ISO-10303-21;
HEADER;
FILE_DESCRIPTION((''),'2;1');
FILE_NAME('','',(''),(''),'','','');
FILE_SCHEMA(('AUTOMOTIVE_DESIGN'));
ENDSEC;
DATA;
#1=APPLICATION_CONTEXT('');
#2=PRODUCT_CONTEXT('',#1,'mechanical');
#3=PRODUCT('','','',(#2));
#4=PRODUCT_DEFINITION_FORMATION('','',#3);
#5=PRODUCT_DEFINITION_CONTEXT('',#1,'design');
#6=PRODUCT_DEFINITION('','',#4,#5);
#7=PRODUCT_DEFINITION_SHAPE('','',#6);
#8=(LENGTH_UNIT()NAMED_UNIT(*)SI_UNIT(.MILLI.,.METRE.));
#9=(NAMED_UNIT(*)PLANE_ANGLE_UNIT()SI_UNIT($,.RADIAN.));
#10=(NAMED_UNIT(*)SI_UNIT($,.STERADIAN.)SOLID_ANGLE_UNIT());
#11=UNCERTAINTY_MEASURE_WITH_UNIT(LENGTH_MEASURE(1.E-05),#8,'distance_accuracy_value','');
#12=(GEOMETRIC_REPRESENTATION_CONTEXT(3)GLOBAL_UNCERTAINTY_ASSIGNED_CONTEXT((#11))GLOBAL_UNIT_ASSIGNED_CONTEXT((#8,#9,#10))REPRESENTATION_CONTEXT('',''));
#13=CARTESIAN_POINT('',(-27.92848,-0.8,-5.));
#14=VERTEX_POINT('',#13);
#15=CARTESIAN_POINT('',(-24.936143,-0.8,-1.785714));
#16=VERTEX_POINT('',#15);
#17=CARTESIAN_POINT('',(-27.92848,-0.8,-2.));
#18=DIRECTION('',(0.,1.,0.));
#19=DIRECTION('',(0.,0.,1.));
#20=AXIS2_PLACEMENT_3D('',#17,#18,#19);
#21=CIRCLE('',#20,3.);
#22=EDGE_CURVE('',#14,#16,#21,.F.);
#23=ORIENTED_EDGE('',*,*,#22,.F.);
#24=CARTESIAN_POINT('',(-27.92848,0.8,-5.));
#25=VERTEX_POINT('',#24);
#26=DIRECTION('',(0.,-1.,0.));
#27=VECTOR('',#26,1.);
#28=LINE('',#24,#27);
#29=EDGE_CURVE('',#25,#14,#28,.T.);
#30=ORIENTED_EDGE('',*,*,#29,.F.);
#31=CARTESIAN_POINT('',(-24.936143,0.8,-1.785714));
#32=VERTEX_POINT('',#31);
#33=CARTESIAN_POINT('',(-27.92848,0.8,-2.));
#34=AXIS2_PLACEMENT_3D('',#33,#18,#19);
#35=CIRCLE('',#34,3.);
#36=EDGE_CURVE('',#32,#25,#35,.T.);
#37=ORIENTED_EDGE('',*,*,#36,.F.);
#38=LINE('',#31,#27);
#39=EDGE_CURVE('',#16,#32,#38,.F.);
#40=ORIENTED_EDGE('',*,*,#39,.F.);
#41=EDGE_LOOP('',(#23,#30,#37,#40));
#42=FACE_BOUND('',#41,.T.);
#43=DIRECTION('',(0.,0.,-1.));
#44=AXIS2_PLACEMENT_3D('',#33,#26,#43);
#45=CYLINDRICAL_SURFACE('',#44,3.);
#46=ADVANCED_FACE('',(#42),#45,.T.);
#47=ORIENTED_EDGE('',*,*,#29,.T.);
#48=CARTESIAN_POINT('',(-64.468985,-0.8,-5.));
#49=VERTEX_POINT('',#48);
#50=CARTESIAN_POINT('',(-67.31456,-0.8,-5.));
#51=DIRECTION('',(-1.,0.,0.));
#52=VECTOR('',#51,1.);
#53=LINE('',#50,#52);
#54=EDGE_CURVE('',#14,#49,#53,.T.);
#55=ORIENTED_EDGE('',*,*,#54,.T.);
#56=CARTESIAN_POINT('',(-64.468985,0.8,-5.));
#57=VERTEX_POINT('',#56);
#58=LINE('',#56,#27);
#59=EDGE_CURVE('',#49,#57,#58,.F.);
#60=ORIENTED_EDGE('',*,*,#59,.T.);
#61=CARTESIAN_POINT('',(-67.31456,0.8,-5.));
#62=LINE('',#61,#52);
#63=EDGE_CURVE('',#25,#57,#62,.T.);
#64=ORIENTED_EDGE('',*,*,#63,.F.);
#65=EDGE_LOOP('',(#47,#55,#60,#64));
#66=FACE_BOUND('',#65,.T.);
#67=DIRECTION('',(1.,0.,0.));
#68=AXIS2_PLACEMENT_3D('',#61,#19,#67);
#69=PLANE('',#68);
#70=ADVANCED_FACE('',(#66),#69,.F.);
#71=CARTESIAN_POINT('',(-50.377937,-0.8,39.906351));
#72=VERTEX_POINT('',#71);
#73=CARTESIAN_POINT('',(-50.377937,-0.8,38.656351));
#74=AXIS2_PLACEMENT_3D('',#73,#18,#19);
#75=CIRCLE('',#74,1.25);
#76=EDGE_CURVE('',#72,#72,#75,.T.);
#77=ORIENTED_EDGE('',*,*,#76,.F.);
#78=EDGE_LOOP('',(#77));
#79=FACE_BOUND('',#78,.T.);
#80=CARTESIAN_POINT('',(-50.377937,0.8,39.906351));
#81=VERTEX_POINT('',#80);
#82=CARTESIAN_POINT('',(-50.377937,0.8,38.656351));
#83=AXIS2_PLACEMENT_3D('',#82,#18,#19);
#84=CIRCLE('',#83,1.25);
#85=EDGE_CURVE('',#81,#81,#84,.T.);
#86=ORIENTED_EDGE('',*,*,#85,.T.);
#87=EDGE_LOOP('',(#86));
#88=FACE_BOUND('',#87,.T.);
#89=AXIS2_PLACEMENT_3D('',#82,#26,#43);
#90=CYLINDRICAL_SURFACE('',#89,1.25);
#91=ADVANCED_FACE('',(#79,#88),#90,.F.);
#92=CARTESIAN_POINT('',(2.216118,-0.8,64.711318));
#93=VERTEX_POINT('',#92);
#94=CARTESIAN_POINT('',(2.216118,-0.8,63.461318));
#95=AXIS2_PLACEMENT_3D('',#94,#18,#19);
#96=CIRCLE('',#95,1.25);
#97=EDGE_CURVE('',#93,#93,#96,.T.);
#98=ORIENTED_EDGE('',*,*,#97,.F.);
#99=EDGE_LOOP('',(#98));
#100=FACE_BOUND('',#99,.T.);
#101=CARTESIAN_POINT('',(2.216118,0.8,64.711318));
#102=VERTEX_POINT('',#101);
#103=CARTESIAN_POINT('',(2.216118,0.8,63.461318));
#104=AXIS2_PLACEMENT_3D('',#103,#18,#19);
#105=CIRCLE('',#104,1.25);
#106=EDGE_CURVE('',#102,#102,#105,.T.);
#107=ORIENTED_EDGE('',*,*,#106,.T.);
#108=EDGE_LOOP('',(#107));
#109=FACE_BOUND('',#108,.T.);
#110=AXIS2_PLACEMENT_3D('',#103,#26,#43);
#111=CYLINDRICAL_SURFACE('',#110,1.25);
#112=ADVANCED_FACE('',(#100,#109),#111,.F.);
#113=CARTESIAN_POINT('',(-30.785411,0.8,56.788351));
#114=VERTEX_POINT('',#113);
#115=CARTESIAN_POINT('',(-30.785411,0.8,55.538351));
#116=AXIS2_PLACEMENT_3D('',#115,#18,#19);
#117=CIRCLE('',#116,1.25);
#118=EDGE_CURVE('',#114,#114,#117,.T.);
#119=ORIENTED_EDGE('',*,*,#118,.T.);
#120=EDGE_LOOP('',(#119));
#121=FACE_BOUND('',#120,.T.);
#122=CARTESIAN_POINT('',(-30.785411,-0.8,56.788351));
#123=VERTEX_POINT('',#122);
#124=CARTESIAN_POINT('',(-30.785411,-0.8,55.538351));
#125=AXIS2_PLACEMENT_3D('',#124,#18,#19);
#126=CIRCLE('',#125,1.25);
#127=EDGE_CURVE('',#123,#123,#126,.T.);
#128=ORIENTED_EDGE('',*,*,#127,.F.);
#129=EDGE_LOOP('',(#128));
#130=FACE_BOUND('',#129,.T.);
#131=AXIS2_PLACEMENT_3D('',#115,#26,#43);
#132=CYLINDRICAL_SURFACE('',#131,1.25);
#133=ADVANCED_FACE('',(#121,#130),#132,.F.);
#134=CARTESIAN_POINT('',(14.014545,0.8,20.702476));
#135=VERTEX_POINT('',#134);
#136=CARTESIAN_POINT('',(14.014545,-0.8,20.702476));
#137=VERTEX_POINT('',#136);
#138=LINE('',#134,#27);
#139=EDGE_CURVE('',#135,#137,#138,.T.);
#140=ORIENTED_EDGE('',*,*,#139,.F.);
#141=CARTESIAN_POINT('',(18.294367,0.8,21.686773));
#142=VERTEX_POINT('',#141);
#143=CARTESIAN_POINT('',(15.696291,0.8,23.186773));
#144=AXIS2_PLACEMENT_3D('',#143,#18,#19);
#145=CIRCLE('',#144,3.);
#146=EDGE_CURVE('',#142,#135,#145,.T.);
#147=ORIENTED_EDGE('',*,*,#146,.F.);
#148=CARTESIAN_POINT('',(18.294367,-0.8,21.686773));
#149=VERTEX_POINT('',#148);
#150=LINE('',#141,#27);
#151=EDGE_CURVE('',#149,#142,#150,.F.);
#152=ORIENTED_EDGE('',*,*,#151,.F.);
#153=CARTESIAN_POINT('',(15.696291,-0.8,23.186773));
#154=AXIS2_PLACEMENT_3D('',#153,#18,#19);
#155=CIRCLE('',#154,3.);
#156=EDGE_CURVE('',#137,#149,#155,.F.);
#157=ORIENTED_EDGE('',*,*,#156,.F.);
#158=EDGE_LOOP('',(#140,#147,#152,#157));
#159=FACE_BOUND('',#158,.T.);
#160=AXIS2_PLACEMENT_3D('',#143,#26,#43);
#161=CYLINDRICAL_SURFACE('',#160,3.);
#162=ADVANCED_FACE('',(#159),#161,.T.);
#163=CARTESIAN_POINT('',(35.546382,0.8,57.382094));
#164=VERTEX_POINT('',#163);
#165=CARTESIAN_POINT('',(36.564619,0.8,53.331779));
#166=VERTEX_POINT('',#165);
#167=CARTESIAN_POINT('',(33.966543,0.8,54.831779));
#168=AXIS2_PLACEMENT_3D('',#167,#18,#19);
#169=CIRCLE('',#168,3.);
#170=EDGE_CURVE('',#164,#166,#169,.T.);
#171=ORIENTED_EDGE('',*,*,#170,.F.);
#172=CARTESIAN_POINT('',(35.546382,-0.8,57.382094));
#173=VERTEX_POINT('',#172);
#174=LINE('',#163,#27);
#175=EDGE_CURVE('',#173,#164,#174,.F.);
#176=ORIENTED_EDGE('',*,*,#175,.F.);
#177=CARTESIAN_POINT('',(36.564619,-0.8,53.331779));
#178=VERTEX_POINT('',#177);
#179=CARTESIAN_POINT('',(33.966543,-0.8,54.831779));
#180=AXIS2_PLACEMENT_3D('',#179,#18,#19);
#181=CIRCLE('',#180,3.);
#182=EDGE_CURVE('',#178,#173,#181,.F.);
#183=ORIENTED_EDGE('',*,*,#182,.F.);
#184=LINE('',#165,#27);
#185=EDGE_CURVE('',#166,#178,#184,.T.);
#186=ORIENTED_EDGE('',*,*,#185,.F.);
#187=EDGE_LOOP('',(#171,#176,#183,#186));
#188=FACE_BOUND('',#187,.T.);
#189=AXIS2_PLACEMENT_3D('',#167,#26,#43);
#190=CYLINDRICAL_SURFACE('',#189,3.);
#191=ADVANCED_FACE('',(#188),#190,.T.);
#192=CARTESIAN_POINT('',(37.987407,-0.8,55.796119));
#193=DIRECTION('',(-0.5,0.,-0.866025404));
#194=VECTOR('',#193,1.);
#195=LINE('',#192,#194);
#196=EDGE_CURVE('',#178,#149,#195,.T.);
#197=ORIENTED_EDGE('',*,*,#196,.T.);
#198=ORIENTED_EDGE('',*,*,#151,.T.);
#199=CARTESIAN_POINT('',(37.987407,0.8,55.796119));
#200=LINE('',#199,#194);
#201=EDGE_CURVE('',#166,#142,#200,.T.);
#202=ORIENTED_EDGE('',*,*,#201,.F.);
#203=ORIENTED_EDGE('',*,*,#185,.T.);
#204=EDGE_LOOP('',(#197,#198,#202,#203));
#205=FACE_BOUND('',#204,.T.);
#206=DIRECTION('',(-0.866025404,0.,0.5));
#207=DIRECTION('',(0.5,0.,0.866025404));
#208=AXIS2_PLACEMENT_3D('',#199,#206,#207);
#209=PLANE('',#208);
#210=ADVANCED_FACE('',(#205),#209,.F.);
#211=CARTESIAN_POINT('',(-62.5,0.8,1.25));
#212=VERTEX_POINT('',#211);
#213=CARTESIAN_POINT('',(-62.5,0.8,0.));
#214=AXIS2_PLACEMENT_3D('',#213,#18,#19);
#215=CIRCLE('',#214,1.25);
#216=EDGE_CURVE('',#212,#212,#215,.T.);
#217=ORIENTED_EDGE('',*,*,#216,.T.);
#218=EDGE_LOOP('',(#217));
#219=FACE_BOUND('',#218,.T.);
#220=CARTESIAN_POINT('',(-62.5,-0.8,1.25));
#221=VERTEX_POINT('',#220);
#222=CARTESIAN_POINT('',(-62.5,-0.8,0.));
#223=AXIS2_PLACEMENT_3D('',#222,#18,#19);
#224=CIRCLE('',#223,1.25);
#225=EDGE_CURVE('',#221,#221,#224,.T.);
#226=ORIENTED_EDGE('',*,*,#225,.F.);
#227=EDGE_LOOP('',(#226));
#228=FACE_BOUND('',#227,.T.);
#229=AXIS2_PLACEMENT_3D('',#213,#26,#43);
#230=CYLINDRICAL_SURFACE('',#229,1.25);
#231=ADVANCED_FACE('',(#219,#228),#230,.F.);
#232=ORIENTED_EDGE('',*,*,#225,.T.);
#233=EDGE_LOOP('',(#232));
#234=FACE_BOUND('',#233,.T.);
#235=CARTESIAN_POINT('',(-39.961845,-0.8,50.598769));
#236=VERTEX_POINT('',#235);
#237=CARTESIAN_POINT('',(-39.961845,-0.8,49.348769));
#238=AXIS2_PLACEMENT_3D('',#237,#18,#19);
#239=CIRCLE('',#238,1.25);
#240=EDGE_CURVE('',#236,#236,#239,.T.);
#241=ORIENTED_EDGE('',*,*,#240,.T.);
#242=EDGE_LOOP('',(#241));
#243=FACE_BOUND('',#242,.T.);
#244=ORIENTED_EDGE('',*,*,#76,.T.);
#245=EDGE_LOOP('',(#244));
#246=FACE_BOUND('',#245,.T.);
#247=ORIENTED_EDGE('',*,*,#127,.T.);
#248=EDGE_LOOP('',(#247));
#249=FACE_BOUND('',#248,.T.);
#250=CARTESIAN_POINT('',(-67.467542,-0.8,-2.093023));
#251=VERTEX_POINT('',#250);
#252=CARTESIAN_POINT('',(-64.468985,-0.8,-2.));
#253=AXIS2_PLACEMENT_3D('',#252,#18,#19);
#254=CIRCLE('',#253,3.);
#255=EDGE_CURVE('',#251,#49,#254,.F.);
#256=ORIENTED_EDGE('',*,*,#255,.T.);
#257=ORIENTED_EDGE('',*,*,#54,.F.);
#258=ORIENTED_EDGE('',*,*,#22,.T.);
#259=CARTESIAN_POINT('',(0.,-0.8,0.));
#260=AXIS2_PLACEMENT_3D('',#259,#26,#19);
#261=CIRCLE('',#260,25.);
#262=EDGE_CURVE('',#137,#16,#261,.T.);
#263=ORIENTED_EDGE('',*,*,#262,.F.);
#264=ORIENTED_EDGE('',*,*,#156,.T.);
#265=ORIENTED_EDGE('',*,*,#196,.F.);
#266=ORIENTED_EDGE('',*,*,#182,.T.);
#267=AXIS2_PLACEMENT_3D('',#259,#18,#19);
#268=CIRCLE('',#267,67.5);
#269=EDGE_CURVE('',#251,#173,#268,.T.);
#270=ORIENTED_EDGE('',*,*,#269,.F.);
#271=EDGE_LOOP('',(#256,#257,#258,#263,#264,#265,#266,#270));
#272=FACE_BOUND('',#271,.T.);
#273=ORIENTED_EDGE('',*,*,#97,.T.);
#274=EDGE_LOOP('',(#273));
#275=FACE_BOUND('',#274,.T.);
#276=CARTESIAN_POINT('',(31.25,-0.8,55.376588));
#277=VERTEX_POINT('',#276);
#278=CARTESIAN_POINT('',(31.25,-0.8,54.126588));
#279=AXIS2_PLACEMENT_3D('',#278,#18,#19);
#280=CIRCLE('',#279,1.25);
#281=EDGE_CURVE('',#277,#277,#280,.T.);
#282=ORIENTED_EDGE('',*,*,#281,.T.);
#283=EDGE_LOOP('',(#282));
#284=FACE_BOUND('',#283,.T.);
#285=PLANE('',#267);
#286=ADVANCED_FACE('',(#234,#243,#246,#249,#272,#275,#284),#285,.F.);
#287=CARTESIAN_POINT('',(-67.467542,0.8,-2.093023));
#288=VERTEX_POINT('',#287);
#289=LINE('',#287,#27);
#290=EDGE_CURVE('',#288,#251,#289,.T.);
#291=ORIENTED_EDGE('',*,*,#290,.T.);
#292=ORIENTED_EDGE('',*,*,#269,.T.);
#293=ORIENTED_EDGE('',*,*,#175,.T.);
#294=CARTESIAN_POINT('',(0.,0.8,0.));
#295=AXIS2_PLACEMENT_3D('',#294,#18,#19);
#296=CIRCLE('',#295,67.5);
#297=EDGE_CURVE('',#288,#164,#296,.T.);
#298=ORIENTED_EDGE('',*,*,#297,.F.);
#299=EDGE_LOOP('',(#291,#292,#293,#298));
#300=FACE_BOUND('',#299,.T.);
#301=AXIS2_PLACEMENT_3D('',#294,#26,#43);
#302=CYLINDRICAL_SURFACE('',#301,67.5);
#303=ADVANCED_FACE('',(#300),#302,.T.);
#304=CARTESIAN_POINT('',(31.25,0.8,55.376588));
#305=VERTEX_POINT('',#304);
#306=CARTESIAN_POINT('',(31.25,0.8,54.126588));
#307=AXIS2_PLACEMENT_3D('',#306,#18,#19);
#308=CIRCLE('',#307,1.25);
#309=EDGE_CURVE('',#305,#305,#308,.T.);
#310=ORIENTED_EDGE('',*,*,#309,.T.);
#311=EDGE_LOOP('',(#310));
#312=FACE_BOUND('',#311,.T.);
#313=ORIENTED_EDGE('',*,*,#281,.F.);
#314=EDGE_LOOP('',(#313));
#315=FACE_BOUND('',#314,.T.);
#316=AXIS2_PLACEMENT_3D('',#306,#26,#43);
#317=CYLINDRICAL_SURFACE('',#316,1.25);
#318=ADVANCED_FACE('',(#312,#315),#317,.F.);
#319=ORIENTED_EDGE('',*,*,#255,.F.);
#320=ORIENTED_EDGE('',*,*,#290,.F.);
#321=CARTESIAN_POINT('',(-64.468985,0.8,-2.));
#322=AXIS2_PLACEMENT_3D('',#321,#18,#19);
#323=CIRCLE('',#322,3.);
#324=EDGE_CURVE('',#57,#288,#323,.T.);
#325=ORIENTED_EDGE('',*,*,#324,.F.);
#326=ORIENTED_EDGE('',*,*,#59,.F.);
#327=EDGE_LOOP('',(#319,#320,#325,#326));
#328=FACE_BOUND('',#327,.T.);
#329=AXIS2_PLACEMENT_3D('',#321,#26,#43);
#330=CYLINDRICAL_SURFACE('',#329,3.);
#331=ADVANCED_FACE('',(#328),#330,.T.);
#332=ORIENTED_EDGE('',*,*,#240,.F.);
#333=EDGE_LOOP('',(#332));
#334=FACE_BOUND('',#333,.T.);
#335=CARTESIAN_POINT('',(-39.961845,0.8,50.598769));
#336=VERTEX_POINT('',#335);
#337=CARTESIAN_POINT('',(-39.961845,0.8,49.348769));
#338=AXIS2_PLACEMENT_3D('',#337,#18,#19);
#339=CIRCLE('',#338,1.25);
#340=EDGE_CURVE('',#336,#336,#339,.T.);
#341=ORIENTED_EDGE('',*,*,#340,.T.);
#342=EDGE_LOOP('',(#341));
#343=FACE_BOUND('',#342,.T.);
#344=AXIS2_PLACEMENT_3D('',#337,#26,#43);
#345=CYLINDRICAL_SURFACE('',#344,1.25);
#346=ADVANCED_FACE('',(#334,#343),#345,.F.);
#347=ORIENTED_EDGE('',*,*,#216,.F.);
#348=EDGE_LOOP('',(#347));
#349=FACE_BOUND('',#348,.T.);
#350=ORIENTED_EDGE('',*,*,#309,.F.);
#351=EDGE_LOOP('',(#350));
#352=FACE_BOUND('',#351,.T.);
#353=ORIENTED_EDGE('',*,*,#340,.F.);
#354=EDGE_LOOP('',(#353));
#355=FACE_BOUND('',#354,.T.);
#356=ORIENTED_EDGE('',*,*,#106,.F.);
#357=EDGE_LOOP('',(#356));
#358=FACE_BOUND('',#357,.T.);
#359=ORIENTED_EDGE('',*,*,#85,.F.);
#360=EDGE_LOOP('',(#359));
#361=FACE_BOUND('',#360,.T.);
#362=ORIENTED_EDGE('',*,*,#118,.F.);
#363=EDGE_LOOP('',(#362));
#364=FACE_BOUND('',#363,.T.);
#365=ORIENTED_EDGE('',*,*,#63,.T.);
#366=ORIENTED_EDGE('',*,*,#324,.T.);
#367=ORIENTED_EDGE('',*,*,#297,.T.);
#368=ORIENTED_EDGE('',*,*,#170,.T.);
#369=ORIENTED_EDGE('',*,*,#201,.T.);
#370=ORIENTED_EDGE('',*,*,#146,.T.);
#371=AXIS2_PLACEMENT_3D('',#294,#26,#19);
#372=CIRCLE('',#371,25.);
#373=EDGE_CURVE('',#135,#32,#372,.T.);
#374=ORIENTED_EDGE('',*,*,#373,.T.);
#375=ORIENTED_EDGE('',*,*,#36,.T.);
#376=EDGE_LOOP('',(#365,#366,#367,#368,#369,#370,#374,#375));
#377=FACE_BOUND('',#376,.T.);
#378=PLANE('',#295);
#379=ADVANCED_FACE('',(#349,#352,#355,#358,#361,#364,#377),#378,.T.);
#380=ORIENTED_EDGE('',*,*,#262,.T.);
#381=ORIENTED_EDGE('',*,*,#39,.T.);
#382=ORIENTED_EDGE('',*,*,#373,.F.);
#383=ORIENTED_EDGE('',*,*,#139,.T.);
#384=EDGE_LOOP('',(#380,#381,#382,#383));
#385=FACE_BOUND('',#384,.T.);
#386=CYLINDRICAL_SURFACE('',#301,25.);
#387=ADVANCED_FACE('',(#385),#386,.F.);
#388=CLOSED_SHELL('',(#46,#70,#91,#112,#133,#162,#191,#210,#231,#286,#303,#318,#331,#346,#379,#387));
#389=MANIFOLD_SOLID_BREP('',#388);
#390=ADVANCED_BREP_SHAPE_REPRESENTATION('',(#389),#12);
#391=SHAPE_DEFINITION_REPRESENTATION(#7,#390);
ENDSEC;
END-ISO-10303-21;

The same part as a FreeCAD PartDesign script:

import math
import FreeCAD as App
import Part
import Sketcher
Q = App.Units.Quantity


def edges_at(feature, points):
    """Names of the edges that pass closest to the given points."""
    edges = feature.Shape.Edges
    near = lambda p: min(range(len(edges)), key=lambda i: edges[i].distToShape(Part.Vertex(*p))[0])
    return sorted({f"Edge{near(p) + 1}" for p in points})

doc = App.newDocument("Part")
body = doc.addObject("PartDesign::Body", "Body")

# Sketch on XZ plane
sketch1 = body.newObject("Sketcher::SketchObject", "Sketch")
sketch1.AttachmentSupport = (doc.getObject("XZ_Plane"), [""])
sketch1.MapMode = "FlatFace"
sketch1.addGeometry([
    Part.LineSegment(App.Vector(-24.5, -5, 0), App.Vector(-67.3, -5, 0)),  # 0
    Part.ArcOfCircle(Part.Circle(App.Vector(0, 0, 0), App.Vector(0, 0, 1), 67.5), math.radians(56), math.radians(184)),  # 1
    Part.LineSegment(App.Vector(38, 55.8, 0), App.Vector(16.6, 18.7, 0)),  # 2
    Part.ArcOfCircle(Part.Circle(App.Vector(0, 0, 0), App.Vector(0, 0, 1), 25), math.radians(48), math.radians(192)),  # 3
    Part.Circle(App.Vector(31.2, 54.1, 0), App.Vector(0, 0, 1), 1.2),  # 4
    Part.Circle(App.Vector(2.2, 63.5, 0), App.Vector(0, 0, 1), 1.2),  # 5
    Part.Circle(App.Vector(-30.8, 55.5, 0), App.Vector(0, 0, 1), 1.2),  # 6
    Part.Circle(App.Vector(-40, 49.3, 0), App.Vector(0, 0, 1), 1.2),  # 7
    Part.Circle(App.Vector(-50.4, 38.7, 0), App.Vector(0, 0, 1), 1.2),  # 8
    Part.Circle(App.Vector(-62.5, 0, 0), App.Vector(0, 0, 1), 1.2),  # 9
], False)
sketch1.addConstraint([
    Sketcher.Constraint("Coincident", 0, 2, 1, 2),
    Sketcher.Constraint("Coincident", 1, 1, 2, 1),
    Sketcher.Constraint("Coincident", 2, 2, 3, 1),
    Sketcher.Constraint("Coincident", 3, 2, 0, 1),
    Sketcher.Constraint("Horizontal", 0),
    Sketcher.Constraint("Coincident", 1, 3, -1, 1),
    Sketcher.Constraint("Coincident", 3, 3, -1, 1),
    Sketcher.Constraint("Equal", 4, 5),
    Sketcher.Constraint("Equal", 5, 6),
    Sketcher.Constraint("Equal", 6, 7),
    Sketcher.Constraint("Equal", 7, 8),
    Sketcher.Constraint("Equal", 8, 9),
    Sketcher.Constraint("PointOnObject", 9, 3, -1),
    Sketcher.Constraint("Radius", 3, Q("25 mm")),
    Sketcher.Constraint("Diameter", 4, Q("2.5 mm")),
    Sketcher.Constraint("Radius", 1, Q("67.5 mm")),
    Sketcher.Constraint("Angle", 2, Q("-120 deg")),
    Sketcher.Constraint("DistanceY", 0, 2, -1, 1, Q("5 mm")),
    Sketcher.Constraint("DistanceX", 9, 3, -1, 1, Q("62.5 mm")),
    Sketcher.Constraint("DistanceX", -1, 1, 4, 3, Q("31.25 mm")),
    Sketcher.Constraint("DistanceY", 8, 3, 6, 3, Q("16.882001 mm")),
    Sketcher.Constraint("DistanceY", 1, 1, 5, 3, Q("7.665198 mm")),
    Sketcher.Constraint("DistanceX", -1, 1, 5, 3, Q("2.216118 mm")),
    Sketcher.Constraint("DistanceX", 6, 3, -1, 1, Q("30.785411 mm")),
    Sketcher.Constraint("DistanceY", -1, 1, 6, 3, Q("55.538351 mm")),
    Sketcher.Constraint("DistanceY", -1, 1, 7, 3, Q("49.348769 mm")),
    Sketcher.Constraint("DistanceY", -1, 1, 1, 1, Q("55.796119 mm")),
    Sketcher.Constraint("DistanceY", 4, 3, 5, 3, Q("9.33473 mm")),
    Sketcher.Constraint("DistanceX", 7, 3, -1, 1, Q("39.961845 mm")),
    Sketcher.Constraint("DistanceX", 8, 3, -1, 1, Q("50.377937 mm")),
])
pad1 = body.newObject("PartDesign::Pad", "Pad")
pad1.Profile = sketch1
pad1.Length = 1.6
pad1.Midplane = True
doc.recompute()

fillet = body.newObject("PartDesign::Fillet", "Fillet")
fillet.Base = (pad1, edges_at(pad1, [
    (-67.315, 0, -5),
    (-24.495, 0, -5),
    (16.578, 0, 18.713),
    (37.987, 0, 55.796),
]))
fillet.Radius = 3

doc.recompute()
